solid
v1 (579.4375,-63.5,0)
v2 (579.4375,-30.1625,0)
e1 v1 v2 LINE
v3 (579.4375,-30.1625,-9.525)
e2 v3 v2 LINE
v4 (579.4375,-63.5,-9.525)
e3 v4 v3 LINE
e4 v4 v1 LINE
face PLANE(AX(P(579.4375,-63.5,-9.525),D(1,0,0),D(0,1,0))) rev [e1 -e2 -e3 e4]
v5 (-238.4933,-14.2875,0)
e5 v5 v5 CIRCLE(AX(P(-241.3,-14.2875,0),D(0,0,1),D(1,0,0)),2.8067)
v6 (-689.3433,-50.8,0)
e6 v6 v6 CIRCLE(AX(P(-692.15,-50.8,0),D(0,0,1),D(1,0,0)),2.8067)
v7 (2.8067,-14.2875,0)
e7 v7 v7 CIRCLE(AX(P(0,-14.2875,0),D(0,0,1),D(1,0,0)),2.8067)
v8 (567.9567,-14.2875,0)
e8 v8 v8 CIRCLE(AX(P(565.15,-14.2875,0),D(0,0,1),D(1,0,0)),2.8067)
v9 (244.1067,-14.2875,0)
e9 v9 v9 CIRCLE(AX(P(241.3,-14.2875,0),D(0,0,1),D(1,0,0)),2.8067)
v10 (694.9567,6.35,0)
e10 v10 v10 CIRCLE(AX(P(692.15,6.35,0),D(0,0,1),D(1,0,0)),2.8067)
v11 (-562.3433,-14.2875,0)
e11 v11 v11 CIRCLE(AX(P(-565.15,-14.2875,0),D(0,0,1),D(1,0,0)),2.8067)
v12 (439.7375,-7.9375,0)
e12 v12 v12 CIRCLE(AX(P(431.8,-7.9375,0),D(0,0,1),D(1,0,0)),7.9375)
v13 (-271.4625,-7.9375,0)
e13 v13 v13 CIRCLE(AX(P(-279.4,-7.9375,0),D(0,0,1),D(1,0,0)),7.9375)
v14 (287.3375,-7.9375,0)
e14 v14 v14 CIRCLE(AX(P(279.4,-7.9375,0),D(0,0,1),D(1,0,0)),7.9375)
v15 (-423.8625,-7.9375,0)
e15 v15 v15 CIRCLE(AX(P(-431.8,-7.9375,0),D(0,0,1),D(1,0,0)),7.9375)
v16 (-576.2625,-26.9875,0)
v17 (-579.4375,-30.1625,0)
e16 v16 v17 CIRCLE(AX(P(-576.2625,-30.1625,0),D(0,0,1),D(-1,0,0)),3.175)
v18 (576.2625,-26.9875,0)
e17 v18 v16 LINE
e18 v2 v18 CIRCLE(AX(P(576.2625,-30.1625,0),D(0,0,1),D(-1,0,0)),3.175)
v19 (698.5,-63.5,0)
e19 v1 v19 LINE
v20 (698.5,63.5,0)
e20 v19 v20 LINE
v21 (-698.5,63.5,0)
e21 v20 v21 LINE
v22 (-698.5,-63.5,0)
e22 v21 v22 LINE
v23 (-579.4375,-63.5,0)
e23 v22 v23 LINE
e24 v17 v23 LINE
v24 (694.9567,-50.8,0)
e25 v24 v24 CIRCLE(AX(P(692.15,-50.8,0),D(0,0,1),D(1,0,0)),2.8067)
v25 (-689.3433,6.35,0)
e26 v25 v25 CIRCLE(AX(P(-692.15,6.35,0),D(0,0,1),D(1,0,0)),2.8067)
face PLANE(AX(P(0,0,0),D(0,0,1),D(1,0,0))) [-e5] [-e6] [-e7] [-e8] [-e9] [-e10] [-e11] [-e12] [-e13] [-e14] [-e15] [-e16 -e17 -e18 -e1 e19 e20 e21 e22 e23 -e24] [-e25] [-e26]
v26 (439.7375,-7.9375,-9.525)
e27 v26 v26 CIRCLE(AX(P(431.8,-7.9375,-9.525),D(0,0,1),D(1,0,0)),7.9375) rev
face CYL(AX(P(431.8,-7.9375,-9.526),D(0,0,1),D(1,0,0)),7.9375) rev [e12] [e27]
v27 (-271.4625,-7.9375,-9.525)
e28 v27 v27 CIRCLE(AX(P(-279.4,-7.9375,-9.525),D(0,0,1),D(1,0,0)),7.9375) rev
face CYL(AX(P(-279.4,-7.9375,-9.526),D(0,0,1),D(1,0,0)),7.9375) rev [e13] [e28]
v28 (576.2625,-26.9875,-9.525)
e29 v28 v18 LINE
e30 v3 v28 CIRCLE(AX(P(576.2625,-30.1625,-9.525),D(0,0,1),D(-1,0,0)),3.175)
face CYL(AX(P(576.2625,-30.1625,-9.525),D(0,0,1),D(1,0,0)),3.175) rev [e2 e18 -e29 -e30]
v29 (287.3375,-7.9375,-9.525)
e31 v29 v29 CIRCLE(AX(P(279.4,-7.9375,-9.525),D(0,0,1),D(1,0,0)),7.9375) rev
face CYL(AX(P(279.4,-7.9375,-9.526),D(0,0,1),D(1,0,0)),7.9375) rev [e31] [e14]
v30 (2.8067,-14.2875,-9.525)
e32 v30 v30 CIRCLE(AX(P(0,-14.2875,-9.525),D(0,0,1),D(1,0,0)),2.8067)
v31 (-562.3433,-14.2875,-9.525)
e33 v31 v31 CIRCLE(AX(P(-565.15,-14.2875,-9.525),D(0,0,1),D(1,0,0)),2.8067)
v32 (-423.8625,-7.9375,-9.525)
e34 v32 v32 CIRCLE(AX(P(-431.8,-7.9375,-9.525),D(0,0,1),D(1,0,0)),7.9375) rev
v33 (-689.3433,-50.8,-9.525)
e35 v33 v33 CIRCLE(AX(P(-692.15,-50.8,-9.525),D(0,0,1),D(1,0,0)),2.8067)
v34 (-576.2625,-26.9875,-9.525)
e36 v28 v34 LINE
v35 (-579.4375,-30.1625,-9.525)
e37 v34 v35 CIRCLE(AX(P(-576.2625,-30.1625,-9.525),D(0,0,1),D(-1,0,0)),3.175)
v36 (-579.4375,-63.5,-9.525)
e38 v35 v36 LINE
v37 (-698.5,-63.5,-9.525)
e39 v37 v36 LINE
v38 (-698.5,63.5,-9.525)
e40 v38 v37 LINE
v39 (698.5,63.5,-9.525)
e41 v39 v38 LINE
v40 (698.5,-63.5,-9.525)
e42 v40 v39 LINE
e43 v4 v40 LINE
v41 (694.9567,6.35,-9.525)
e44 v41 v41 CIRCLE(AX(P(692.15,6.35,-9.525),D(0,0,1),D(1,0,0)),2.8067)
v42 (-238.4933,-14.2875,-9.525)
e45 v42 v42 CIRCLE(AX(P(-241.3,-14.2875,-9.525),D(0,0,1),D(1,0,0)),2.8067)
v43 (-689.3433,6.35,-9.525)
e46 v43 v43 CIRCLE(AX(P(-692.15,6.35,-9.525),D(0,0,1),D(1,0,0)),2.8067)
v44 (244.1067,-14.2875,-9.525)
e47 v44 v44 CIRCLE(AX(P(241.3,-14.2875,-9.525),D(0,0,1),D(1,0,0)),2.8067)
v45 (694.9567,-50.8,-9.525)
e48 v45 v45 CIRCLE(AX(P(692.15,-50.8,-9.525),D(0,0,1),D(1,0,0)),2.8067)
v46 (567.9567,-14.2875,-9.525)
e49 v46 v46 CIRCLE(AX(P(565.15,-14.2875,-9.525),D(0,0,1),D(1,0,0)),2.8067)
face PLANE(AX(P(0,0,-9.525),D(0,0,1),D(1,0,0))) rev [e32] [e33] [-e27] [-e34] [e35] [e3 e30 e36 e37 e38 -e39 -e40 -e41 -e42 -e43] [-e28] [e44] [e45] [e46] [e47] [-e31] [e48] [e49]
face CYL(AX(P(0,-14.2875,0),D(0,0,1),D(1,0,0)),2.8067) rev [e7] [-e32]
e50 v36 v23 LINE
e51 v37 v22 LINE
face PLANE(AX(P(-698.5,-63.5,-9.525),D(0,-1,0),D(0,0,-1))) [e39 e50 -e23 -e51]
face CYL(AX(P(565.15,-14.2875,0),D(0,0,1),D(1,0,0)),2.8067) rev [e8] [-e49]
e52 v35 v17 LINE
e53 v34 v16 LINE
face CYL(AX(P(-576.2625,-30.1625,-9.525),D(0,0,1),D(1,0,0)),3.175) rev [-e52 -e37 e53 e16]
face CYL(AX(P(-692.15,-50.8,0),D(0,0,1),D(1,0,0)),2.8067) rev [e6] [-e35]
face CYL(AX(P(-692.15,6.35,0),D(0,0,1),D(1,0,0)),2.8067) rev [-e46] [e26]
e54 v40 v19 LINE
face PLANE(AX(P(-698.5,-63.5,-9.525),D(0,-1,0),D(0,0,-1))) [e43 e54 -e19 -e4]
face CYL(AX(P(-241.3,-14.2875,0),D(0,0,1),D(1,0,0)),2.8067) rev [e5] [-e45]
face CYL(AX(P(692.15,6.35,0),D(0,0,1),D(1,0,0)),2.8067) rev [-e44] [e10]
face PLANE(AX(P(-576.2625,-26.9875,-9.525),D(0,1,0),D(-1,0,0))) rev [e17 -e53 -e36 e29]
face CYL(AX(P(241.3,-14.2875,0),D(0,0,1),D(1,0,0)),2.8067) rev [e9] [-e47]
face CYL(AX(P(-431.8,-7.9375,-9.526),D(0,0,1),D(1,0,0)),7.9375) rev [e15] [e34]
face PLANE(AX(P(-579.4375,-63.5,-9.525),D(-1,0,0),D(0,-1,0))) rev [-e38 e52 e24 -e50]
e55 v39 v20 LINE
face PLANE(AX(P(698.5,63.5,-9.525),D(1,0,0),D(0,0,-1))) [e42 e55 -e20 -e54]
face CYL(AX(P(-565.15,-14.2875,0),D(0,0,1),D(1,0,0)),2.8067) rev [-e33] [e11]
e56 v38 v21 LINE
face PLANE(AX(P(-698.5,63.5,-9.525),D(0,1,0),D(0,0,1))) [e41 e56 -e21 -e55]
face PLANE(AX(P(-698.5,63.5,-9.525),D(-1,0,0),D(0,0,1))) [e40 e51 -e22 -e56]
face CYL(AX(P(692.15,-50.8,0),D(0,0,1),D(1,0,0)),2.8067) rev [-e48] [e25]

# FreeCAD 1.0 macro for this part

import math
import FreeCAD as App
import Part
import Sketcher
Q = App.Units.Quantity

doc = App.newDocument("Part")
body = doc.addObject("PartDesign::Body", "Body")

# Sketch on XY plane
sketch1 = body.newObject("Sketcher::SketchObject", "Sketch")
sketch1.AttachmentSupport = (doc.getObject("XY_Plane"), [""])
sketch1.MapMode = "FlatFace"
sketch1.addGeometry([
    Part.LineSegment(App.Vector(-698, 64, 0), App.Vector(-698, -64, 0)),
    Part.LineSegment(App.Vector(-698, -64, 0), App.Vector(698, -64, 0)),
    Part.LineSegment(App.Vector(698, -64, 0), App.Vector(698, 64, 0)),
    Part.LineSegment(App.Vector(698, 64, 0), App.Vector(-698, 64, 0)),
], False)
sketch1.addConstraint([
    Sketcher.Constraint("Coincident", 0, 2, 1, 1),
    Sketcher.Constraint("Coincident", 1, 2, 2, 1),
    Sketcher.Constraint("Coincident", 2, 2, 3, 1),
    Sketcher.Constraint("Coincident", 3, 2, 0, 1),
    Sketcher.Constraint("Vertical", 0),
    Sketcher.Constraint("Horizontal", 1),
    Sketcher.Constraint("Vertical", 2),
    Sketcher.Constraint("Horizontal", 3),
    Sketcher.Constraint("Symmetric", 0, 2, 2, 2, -1, 1),
    Sketcher.Constraint("DistanceX", 1, 1, 1, 2, Q("55 in")),
    Sketcher.Constraint("DistanceY", 0, 2, 0, 1, Q("5 in")),
])
pad1 = body.newObject("PartDesign::Pad", "Pad")
pad1.Profile = sketch1
pad1.Length = Q("0.375 in")
pad1.Reversed = True

# Sketch on XY plane
sketch2 = body.newObject("Sketcher::SketchObject", "Sketch001")
sketch2.AttachmentSupport = (doc.getObject("XY_Plane"), [""])
sketch2.MapMode = "FlatFace"
sketch2.addGeometry([
    Part.LineSegment(App.Vector(-579.4, -63.5, 0), App.Vector(579.4, -63.5, 0)),  # 0
    Part.LineSegment(App.Vector(579.4, -63.5, 0), App.Vector(579.4, -30.2, 0)),  # 1
    Part.ArcOfCircle(Part.Circle(App.Vector(576.3, -30.2, 0), App.Vector(0, 0, 1), 3.2), math.radians(0), math.radians(90)),  # 2
    Part.LineSegment(App.Vector(576.3, -27, 0), App.Vector(-576.3, -27, 0)),  # 3
    Part.ArcOfCircle(Part.Circle(App.Vector(-576.3, -30.2, 0), App.Vector(0, 0, 1), 3.2), math.radians(90), math.radians(180)),  # 4
    Part.LineSegment(App.Vector(-579.4, -30.2, 0), App.Vector(-579.4, -63.5, 0)),  # 5
], False)
sketch2.addConstraint([
    Sketcher.Constraint("Coincident", 0, 2, 1, 1),
    Sketcher.Constraint("Tangent", 1, 2, 2, 1),
    Sketcher.Constraint("Tangent", 2, 2, 3, 1),
    Sketcher.Constraint("Tangent", 3, 2, 4, 1),
    Sketcher.Constraint("Tangent", 4, 2, 5, 1),
    Sketcher.Constraint("Coincident", 5, 2, 0, 1),
    Sketcher.Constraint("Horizontal", 0),
    Sketcher.Constraint("Vertical", 1),
    Sketcher.Constraint("Horizontal", 3),
    Sketcher.Constraint("Vertical", 5),
    Sketcher.Constraint("Equal", 2, 4),
    Sketcher.Constraint("Radius", 2, Q("0.125 in")),
    Sketcher.Constraint("DistanceY", 0, 2, -1, 1, Q("2.5 in")),
    Sketcher.Constraint("DistanceX", 4, 3, 0, 2, Q("45.5 in")),
    Sketcher.Constraint("DistanceY", 1, 1, 1, 2, Q("1.3125 in")),
    Sketcher.Constraint("DistanceX", -1, 1, 2, 3, Q("22.6875 in")),
])
pocket1 = body.newObject("PartDesign::Pocket", "Pocket")
pocket1.Profile = sketch2
pocket1.Type = "ThroughAll"

# Sketch on XY plane
sketch3 = body.newObject("Sketcher::SketchObject", "Sketch002")
sketch3.AttachmentSupport = (doc.getObject("XY_Plane"), [""])
sketch3.MapMode = "FlatFace"
sketch3.addGeometry([
    Part.Circle(App.Vector(-692.1, 6.3, 0), App.Vector(0, 0, 1), 2.8),  # 0
    Part.Circle(App.Vector(-692.1, -50.8, 0), App.Vector(0, 0, 1), 2.8),  # 1
    Part.Circle(App.Vector(692.1, 6.3, 0), App.Vector(0, 0, 1), 2.8),  # 2
    Part.Circle(App.Vector(692.1, -50.8, 0), App.Vector(0, 0, 1), 2.8),  # 3
    Part.Circle(App.Vector(-565.1, -14.3, 0), App.Vector(0, 0, 1), 2.8),  # 4
    Part.Circle(App.Vector(-241.3, -14.3, 0), App.Vector(0, 0, 1), 2.8),  # 5
    Part.Circle(App.Vector(0, -14.3, 0), App.Vector(0, 0, 1), 2.8),  # 6
    Part.Circle(App.Vector(241.3, -14.3, 0), App.Vector(0, 0, 1), 2.8),  # 7
    Part.Circle(App.Vector(565.1, -14.3, 0), App.Vector(0, 0, 1), 2.8),  # 8
], False)
sketch3.addConstraint([
    Sketcher.Constraint("Equal", 0, 1),
    Sketcher.Constraint("Equal", 1, 2),
    Sketcher.Constraint("Equal", 2, 3),
    Sketcher.Constraint("Equal", 3, 4),
    Sketcher.Constraint("Equal", 4, 5),
    Sketcher.Constraint("Equal", 5, 6),
    Sketcher.Constraint("Equal", 6, 7),
    Sketcher.Constraint("Equal", 7, 8),
    Sketcher.Constraint("Symmetric", 0, 3, 2, 3, -2),
    Sketcher.Constraint("Symmetric", 1, 3, 3, 3, -2),
    Sketcher.Constraint("Symmetric", 5, 3, 7, 3, -2),
    Sketcher.Constraint("Symmetric", 4, 3, 8, 3, -2),
    Sketcher.Constraint("PointOnObject", 6, 3, -2),
    Sketcher.Constraint("Horizontal", 4, 3, 5, 3),
    Sketcher.Constraint("Horizontal", 5, 3, 6, 3),
    Sketcher.Constraint("Vertical", 0, 3, 1, 3),
    Sketcher.Constraint("Diameter", 0, Q("0.221 in")),
    Sketcher.Constraint("DistanceY", 1, 3, -1, 1, Q("2 in")),
    Sketcher.Constraint("DistanceX", 0, 3, 4, 3, Q("5 in")),
    Sketcher.Constraint("DistanceX", 5, 3, 7, 3, Q("19 in")),
    Sketcher.Constraint("DistanceX", 0, 3, 2, 3, Q("54.5 in")),
    Sketcher.Constraint("DistanceY", -1, 1, 0, 3, Q("0.25 in")),
    Sketcher.Constraint("DistanceY", 4, 3, -1, 1, Q("0.5625 in")),
])
doc.recompute()
hole = body.newObject("PartDesign::Hole", "Hole")
hole.Profile = sketch3
hole.ThreadType = "None"
hole.Diameter = Q("0.221 in")
hole.DepthType = "ThroughAll"

# Sketch on XY plane
sketch4 = body.newObject("Sketcher::SketchObject", "Sketch003")
sketch4.AttachmentSupport = (doc.getObject("XY_Plane"), [""])
sketch4.MapMode = "FlatFace"
sketch4.addGeometry(Part.Circle(App.Vector(-432, -8, 0), App.Vector(0, 0, 1), 8), False)
sketch4.addConstraint([
    Sketcher.Constraint("Diameter", 0, Q("0.625 in")),
    Sketcher.Constraint("DistanceX", 0, 3, -1, 1, Q("17 in")),
    Sketcher.Constraint("DistanceY", 0, 3, -1, 1, Q("0.3125 in")),
])
pocket2 = body.newObject("PartDesign::Pocket", "Pocket001")
pocket2.Profile = sketch4
pocket2.Type = "UpToFirst"

# Sketch on XY plane
sketch5 = body.newObject("Sketcher::SketchObject", "Sketch004")
sketch5.AttachmentSupport = (doc.getObject("XY_Plane"), [""])
sketch5.MapMode = "FlatFace"
sketch5.addGeometry(Part.Circle(App.Vector(-279, -8, 0), App.Vector(0, 0, 1), 8), False)
sketch5.addConstraint([
    Sketcher.Constraint("Diameter", 0, Q("0.625 in")),
    Sketcher.Constraint("DistanceX", 0, 3, -1, 1, Q("11 in")),
    Sketcher.Constraint("DistanceY", 0, 3, -1, 1, Q("0.3125 in")),
])
pocket3 = body.newObject("PartDesign::Pocket", "Pocket002")
pocket3.Profile = sketch5
pocket3.Type = "UpToFirst"

# Sketch on XY plane
sketch6 = body.newObject("Sketcher::SketchObject", "Sketch005")
sketch6.AttachmentSupport = (doc.getObject("XY_Plane"), [""])
sketch6.MapMode = "FlatFace"
sketch6.addGeometry(Part.Circle(App.Vector(279, -8, 0), App.Vector(0, 0, 1), 8), False)
sketch6.addConstraint([
    Sketcher.Constraint("Diameter", 0, Q("0.625 in")),
    Sketcher.Constraint("DistanceX", -1, 1, 0, 3, Q("11 in")),
    Sketcher.Constraint("DistanceY", 0, 3, -1, 1, Q("0.3125 in")),
])
pocket4 = body.newObject("PartDesign::Pocket", "Pocket003")
pocket4.Profile = sketch6
pocket4.Type = "UpToFirst"

# Sketch on XY plane
sketch7 = body.newObject("Sketcher::SketchObject", "Sketch006")
sketch7.AttachmentSupport = (doc.getObject("XY_Plane"), [""])
sketch7.MapMode = "FlatFace"
sketch7.addGeometry(Part.Circle(App.Vector(432, -8, 0), App.Vector(0, 0, 1), 8), False)
sketch7.addConstraint([
    Sketcher.Constraint("Diameter", 0, Q("0.625 in")),
    Sketcher.Constraint("DistanceX", -1, 1, 0, 3, Q("17 in")),
    Sketcher.Constraint("DistanceY", 0, 3, -1, 1, Q("0.3125 in")),
])
pocket5 = body.newObject("PartDesign::Pocket", "Pocket004")
pocket5.Profile = sketch7
pocket5.Type = "UpToFirst"

doc.recompute()
